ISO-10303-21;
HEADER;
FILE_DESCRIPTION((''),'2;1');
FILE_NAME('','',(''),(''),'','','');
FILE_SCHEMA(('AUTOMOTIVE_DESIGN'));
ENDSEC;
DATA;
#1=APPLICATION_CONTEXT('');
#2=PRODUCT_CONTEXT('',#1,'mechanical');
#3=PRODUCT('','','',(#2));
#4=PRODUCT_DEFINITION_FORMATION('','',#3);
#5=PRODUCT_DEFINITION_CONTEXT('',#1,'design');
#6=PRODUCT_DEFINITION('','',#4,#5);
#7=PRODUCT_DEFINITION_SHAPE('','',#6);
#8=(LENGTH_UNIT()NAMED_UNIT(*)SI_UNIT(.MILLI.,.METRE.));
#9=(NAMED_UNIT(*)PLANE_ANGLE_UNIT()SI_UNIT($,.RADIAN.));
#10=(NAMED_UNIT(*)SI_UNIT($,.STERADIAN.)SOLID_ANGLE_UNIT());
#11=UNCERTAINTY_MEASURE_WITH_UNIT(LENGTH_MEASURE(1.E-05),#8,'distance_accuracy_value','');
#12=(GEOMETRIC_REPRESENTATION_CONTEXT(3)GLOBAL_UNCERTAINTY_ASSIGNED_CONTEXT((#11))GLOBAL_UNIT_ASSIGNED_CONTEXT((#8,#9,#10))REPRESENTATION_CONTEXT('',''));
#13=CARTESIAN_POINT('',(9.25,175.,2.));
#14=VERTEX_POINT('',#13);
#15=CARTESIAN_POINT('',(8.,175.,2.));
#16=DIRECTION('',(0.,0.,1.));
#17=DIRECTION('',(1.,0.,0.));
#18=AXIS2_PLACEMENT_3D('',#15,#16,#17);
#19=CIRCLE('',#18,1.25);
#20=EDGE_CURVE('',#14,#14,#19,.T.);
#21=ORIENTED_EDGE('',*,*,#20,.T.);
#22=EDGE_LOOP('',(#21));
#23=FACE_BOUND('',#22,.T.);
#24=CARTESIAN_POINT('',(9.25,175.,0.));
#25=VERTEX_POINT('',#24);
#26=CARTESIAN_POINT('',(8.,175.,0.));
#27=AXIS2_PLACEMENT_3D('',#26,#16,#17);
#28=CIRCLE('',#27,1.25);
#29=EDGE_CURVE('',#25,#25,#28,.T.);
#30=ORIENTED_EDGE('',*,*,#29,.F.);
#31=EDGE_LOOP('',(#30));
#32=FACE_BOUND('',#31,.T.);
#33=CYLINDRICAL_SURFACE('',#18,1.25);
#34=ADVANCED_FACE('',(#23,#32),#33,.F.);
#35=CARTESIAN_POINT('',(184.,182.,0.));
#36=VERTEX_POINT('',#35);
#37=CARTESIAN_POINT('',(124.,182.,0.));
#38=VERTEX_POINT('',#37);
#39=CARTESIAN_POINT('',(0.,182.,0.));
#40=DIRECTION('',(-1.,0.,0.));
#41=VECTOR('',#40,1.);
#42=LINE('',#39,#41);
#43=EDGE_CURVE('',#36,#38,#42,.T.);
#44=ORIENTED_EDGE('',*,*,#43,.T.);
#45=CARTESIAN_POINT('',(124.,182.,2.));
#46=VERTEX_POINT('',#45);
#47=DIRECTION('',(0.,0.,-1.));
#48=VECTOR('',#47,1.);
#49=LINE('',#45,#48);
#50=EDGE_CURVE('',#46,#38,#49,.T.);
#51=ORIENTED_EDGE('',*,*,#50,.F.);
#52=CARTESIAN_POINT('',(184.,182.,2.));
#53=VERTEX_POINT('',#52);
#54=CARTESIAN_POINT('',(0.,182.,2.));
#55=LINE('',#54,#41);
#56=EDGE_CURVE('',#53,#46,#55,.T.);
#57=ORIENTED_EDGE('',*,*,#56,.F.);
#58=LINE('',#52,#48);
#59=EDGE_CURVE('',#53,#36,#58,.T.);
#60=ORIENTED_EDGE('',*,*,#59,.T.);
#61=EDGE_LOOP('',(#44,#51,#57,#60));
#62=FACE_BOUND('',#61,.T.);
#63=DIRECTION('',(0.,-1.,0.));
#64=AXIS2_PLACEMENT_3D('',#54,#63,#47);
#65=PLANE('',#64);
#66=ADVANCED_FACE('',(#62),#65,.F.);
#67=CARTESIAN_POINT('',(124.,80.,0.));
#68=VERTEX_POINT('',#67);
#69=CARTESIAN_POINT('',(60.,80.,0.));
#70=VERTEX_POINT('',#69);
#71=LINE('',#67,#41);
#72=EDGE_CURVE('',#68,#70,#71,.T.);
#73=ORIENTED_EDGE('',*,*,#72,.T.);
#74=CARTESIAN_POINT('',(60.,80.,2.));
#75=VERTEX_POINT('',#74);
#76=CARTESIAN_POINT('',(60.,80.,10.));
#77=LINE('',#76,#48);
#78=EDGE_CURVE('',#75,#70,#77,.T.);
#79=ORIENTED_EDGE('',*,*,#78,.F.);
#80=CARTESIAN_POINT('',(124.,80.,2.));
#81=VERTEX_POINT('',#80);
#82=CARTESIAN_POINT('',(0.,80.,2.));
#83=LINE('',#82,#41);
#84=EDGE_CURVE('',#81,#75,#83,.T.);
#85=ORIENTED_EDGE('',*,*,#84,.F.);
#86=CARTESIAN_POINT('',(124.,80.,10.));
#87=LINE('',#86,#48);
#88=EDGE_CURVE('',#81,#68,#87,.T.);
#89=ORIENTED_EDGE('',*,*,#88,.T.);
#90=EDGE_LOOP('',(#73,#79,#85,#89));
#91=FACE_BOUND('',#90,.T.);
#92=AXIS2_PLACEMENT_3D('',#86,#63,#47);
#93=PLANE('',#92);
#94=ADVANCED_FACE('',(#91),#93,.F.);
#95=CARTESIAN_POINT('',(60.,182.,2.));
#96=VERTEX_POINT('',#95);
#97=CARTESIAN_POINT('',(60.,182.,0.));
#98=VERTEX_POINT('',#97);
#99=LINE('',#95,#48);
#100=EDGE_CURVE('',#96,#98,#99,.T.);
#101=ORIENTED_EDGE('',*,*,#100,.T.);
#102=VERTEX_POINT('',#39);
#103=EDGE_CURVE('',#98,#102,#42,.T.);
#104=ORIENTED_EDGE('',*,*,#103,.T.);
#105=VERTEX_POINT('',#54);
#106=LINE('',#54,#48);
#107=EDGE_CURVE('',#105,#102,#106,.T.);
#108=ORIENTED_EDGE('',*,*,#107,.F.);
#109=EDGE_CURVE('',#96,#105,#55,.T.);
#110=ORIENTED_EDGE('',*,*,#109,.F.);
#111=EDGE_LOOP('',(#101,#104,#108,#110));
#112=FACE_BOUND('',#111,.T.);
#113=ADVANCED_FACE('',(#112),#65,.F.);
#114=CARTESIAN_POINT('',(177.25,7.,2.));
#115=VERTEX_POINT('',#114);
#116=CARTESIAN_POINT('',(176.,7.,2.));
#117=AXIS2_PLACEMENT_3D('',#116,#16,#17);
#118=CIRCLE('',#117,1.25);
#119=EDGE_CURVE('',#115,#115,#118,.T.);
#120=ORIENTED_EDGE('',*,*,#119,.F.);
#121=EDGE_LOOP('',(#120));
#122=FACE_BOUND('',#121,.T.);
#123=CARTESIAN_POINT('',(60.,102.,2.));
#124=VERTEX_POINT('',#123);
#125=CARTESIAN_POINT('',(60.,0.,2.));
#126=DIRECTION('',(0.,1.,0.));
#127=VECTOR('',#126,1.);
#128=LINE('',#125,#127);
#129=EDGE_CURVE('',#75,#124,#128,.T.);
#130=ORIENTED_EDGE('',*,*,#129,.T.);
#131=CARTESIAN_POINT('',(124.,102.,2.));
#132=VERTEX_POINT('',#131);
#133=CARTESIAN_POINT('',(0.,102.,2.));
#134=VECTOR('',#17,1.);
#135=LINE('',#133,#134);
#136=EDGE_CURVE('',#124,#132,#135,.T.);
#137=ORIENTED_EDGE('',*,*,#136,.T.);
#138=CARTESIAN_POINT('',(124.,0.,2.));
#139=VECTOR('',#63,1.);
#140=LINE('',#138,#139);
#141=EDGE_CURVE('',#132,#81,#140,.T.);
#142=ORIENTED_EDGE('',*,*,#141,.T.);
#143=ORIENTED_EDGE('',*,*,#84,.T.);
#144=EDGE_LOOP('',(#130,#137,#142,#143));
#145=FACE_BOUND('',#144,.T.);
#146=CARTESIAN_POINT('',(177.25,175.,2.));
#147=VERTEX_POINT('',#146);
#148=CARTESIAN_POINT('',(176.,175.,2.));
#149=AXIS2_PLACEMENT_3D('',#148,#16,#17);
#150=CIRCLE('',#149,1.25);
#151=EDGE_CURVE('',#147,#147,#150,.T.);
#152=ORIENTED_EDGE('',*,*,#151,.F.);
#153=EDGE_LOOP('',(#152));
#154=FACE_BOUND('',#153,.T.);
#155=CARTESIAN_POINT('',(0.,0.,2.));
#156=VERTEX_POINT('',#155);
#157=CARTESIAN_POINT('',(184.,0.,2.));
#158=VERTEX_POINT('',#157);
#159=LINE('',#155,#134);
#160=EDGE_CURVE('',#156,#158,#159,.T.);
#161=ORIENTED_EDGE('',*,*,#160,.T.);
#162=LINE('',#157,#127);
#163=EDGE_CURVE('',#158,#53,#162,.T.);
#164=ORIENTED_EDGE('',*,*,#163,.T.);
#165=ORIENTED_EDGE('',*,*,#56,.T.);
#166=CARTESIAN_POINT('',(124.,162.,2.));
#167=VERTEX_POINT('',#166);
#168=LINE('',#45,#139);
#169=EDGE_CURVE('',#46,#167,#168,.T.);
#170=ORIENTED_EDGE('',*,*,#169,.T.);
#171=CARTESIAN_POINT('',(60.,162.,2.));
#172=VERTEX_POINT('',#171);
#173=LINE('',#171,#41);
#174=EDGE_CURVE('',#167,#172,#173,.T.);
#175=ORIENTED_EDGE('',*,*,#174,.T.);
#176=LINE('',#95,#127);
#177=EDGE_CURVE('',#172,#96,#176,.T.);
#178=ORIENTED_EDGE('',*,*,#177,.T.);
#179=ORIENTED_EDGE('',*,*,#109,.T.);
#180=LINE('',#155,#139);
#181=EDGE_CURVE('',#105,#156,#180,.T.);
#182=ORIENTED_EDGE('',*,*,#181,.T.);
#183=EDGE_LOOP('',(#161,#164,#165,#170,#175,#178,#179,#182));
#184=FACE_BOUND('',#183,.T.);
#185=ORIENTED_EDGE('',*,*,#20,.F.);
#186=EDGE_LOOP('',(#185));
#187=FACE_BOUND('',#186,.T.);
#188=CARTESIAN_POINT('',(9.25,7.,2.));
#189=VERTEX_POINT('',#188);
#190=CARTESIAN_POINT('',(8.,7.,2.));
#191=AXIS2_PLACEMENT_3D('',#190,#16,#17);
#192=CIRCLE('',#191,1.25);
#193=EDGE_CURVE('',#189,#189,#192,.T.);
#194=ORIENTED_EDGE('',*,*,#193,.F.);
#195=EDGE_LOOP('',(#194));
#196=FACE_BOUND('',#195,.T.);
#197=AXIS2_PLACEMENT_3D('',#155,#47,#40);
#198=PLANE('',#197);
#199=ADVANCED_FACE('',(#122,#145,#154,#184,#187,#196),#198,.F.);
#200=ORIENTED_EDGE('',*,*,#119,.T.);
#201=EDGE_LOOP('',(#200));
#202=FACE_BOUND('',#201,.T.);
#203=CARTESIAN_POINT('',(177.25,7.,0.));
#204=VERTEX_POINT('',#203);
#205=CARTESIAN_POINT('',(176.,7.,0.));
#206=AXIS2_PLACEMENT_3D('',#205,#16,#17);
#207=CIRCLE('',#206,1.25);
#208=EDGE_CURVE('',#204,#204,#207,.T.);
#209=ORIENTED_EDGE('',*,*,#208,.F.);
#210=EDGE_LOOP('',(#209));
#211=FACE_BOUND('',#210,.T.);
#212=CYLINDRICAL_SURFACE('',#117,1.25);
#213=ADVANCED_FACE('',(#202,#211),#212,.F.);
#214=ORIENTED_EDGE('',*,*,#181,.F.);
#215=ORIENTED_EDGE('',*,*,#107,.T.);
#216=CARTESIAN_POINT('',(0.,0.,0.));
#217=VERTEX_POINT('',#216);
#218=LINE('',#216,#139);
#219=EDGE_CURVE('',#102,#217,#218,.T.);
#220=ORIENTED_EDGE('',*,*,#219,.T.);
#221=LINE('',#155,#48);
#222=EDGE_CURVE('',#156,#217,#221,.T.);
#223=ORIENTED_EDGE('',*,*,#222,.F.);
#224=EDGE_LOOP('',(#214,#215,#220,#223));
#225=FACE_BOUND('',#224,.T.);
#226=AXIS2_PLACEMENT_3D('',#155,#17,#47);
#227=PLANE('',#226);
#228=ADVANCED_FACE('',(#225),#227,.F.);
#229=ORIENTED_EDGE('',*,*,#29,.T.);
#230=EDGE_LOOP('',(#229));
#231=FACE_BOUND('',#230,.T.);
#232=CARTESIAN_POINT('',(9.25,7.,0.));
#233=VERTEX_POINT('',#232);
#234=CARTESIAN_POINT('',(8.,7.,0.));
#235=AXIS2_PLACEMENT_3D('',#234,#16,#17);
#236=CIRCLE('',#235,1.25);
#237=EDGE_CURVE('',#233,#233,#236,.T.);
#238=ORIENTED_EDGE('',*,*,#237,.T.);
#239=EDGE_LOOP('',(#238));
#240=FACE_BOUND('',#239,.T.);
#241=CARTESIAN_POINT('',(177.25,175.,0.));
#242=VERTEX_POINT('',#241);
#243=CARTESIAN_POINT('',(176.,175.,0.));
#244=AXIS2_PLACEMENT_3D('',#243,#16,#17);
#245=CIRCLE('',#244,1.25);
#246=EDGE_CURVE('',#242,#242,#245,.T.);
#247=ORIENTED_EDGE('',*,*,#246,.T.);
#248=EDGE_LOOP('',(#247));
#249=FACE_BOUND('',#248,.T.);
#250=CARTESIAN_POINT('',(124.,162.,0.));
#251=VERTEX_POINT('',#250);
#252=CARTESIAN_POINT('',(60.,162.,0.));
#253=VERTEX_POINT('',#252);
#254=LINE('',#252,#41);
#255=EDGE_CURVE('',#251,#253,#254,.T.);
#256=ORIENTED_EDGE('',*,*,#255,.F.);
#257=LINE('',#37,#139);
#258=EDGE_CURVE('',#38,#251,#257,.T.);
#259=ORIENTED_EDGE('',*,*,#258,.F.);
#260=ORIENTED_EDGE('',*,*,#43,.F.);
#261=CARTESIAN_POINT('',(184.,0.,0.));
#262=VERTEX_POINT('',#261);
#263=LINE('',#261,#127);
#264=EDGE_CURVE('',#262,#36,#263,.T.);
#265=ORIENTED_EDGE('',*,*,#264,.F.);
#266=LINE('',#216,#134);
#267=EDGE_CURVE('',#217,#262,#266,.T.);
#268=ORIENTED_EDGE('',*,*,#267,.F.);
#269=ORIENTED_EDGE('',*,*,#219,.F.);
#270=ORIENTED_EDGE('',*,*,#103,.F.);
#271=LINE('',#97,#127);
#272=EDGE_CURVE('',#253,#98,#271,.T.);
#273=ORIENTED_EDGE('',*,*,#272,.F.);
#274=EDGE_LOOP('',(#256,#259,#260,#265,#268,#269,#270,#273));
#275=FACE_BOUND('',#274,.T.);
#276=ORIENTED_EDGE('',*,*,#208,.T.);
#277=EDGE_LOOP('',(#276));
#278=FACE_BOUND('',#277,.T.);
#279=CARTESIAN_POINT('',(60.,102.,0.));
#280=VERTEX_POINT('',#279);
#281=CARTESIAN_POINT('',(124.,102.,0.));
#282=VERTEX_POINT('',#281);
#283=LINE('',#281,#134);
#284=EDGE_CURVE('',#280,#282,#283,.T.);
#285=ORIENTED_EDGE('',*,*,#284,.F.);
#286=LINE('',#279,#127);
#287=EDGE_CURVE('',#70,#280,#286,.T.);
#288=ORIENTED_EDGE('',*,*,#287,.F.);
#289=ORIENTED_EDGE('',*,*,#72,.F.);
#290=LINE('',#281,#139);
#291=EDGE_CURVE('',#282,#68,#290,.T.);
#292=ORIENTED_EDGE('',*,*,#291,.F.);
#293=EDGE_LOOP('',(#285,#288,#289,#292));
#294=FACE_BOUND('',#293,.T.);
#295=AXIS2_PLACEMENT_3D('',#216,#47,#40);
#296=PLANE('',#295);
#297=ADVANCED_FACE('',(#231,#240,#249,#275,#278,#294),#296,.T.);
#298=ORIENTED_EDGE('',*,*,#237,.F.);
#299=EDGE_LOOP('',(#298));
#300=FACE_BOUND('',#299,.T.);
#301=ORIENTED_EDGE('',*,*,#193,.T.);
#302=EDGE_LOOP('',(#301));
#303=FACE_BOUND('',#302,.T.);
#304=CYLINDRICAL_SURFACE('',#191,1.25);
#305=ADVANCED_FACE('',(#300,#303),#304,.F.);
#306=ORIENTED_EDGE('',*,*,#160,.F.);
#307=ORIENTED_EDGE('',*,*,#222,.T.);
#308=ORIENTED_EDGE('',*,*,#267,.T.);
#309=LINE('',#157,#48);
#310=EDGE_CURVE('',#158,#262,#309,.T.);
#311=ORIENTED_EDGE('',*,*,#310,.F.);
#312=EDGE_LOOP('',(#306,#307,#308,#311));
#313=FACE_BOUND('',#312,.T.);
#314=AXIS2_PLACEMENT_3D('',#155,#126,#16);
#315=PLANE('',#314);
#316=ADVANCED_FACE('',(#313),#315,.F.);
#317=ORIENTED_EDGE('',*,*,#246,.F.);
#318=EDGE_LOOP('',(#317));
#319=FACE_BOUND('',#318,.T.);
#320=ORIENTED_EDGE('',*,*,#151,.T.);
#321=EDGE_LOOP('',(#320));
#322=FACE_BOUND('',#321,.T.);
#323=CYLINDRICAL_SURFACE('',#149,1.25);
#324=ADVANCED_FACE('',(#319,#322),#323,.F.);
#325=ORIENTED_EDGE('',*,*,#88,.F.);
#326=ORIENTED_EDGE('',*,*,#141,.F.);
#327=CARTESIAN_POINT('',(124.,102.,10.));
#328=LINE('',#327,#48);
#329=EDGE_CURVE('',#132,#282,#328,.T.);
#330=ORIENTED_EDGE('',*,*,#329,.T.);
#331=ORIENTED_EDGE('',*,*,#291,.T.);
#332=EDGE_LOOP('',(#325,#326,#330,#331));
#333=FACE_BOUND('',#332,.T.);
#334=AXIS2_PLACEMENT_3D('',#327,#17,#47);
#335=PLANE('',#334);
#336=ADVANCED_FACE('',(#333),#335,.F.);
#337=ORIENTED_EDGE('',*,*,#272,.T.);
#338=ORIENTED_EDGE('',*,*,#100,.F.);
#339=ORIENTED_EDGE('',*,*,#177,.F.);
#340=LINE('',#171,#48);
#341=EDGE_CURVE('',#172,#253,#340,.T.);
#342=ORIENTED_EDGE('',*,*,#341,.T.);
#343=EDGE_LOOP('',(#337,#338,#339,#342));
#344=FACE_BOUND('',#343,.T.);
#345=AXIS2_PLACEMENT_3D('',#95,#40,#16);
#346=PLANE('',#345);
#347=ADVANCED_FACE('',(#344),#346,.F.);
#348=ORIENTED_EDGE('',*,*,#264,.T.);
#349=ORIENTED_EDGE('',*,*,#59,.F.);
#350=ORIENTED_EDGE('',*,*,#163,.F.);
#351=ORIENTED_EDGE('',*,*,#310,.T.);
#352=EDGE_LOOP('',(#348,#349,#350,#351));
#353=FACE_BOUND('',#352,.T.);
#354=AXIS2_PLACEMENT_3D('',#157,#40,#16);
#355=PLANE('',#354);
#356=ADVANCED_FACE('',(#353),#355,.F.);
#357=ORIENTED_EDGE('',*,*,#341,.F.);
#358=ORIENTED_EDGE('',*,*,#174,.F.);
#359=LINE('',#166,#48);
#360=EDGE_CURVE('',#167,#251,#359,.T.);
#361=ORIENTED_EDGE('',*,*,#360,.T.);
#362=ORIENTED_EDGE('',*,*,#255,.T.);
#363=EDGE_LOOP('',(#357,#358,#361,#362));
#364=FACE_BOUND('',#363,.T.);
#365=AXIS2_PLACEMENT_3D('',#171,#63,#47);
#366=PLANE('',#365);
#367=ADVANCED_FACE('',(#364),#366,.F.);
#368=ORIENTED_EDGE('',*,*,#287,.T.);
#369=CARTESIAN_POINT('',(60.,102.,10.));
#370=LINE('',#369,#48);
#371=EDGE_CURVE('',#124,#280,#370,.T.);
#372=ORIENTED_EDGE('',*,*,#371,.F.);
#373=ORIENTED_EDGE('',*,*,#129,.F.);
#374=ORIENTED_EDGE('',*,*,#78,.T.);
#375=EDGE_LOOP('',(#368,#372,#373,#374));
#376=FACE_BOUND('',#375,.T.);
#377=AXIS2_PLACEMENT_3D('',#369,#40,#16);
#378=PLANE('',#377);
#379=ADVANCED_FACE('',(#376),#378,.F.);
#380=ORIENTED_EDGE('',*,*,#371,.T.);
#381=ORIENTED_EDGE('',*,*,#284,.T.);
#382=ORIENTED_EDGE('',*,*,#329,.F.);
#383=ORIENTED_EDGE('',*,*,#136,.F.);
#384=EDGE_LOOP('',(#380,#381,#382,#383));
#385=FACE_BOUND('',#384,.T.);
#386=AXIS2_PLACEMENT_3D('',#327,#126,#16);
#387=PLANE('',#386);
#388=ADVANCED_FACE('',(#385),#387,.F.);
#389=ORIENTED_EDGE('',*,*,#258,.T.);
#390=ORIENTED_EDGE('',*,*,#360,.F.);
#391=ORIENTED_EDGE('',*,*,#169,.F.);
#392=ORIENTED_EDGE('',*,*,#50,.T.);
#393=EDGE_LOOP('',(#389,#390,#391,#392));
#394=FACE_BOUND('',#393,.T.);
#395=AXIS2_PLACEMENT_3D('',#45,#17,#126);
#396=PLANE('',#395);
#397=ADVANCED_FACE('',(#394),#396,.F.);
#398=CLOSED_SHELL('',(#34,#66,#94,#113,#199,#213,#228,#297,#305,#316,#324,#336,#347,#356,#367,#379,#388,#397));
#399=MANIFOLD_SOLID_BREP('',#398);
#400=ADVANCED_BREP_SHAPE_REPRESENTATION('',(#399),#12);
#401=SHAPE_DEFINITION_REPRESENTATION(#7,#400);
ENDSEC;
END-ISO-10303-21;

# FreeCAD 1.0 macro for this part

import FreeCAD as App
import Part
import Sketcher

V = App.Vector
Q = App.Units.Quantity


def add_polygon(sketch, points):
    """Adds a closed chain of lines whose ends are joined by coincident constraints."""
    first, n = sketch.GeometryCount, len(points)
    for a, b in zip(points, points[1:] + points[:1]):
        sketch.addGeometry(Part.LineSegment(App.Vector(*a, 0), App.Vector(*b, 0)), False)
    for i in range(n):
        sketch.addConstraint(Sketcher.Constraint("Coincident", first + i, 2, first + (i + 1) % n, 1))

doc = App.newDocument("Part")
params = doc.addObject("Spreadsheet::Sheet", "Params")
for row, (alias, value) in enumerate([
    ("sketch1_width", "184 mm"),
    ("sketch1_height", "182 mm"),
    ("pad1_length", "2 mm"),
    ("sketch2_diameter", "2.5 mm"),
    ("hole_diameter", "2.5 mm"),
    ("sketch3_width", "64 mm"),
    ("sketch3_height", "20 mm"),
    ("sketch4_width", "64 mm"),
    ("sketch4_height", "22 mm"),
    ("pocket2_length", "10 mm"),
], start=1):
    params.set(f"A{row}", alias)
    params.set(f"B{row}", "=" + value)
    params.setAlias(f"B{row}", alias)

body = doc.addObject("PartDesign::Body", "Body")

# Sketch on XY plane
sketch1 = body.newObject("Sketcher::SketchObject", "Sketch")
sketch1.AttachmentSupport = (doc.getObject("XY_Plane"), [""])
sketch1.MapMode = "FlatFace"
add_polygon(sketch1, [(0, 182), (0, 0), (184, 0), (184, 182)])  # lines 0-3
sketch1.addConstraint(Sketcher.Constraint("Vertical", 0))
sketch1.addConstraint(Sketcher.Constraint("Horizontal", 1))
sketch1.addConstraint(Sketcher.Constraint("Vertical", 2))
sketch1.addConstraint(Sketcher.Constraint("Horizontal", 3))
sketch1.addConstraint(Sketcher.Constraint("Coincident", 0, 2, -1, 1))
sketch1.addConstraint(Sketcher.Constraint("DistanceX", 1, 1, 1, 2, Q("184 mm")))
sketch1.addConstraint(Sketcher.Constraint("DistanceY", 0, 2, 0, 1, Q("182 mm")))
sketch1.setExpression("Constraints[9]", "Params.sketch1_width")
sketch1.setExpression("Constraints[10]", "Params.sketch1_height")
pad1 = body.newObject("PartDesign::Pad", "Pad")
pad1.Profile = sketch1
pad1.setExpression("Length", "Params.pad1_length")

# Sketch on XY plane
sketch2 = body.newObject("Sketcher::SketchObject", "Sketch001")
sketch2.AttachmentSupport = (doc.getObject("XY_Plane"), [""])
sketch2.MapMode = "FlatFace"
sketch2.AttachmentOffset = App.Placement(V(0, 0, 2), App.Rotation())
sketch2.addGeometry(Part.Circle(V(8, 175, 0), V(0, 0, 1), 1.2), False)
sketch2.addGeometry(Part.Circle(V(8, 7, 0), V(0, 0, 1), 1.2), False)
sketch2.addGeometry(Part.Circle(V(176, 7, 0), V(0, 0, 1), 1.2), False)
sketch2.addGeometry(Part.Circle(V(176, 175, 0), V(0, 0, 1), 1.2), False)
sketch2.addConstraint(Sketcher.Constraint("Equal", 0, 1))
sketch2.addConstraint(Sketcher.Constraint("Equal", 1, 2))
sketch2.addConstraint(Sketcher.Constraint("Equal", 2, 3))
sketch2.addConstraint(Sketcher.Constraint("Horizontal", 1, 3, 2, 3))
sketch2.addConstraint(Sketcher.Constraint("Horizontal", 0, 3, 3, 3))
sketch2.addConstraint(Sketcher.Constraint("Vertical", 0, 3, 1, 3))
sketch2.addConstraint(Sketcher.Constraint("Vertical", 2, 3, 3, 3))
sketch2.addConstraint(Sketcher.Constraint("Diameter", 0, Q("2.5 mm")))
sketch2.addConstraint(Sketcher.Constraint("DistanceX", -1, 1, 0, 3, Q("8 mm")))
sketch2.addConstraint(Sketcher.Constraint("DistanceY", -1, 1, 0, 3, Q("175 mm")))
sketch2.addConstraint(Sketcher.Constraint("DistanceY", -1, 1, 1, 3, Q("7 mm")))
sketch2.addConstraint(Sketcher.Constraint("DistanceX", -1, 1, 2, 3, Q("176 mm")))
sketch2.setExpression("Constraints[7]", "Params.sketch2_diameter")
doc.recompute()
hole = body.newObject("PartDesign::Hole", "Hole")
hole.Profile = sketch2
hole.ThreadType = "None"
hole.setExpression("Diameter", "Params.hole_diameter")
hole.DepthType = "ThroughAll"

# Sketch on XY plane
sketch3 = body.newObject("Sketcher::SketchObject", "Sketch002")
sketch3.AttachmentSupport = (doc.getObject("XY_Plane"), [""])
sketch3.MapMode = "FlatFace"
add_polygon(sketch3, [(124, 182), (124, 162), (60, 162), (60, 182)])  # lines 0-3
sketch3.addConstraint(Sketcher.Constraint("Vertical", 0))
sketch3.addConstraint(Sketcher.Constraint("Horizontal", 1))
sketch3.addConstraint(Sketcher.Constraint("Vertical", 2))
sketch3.addConstraint(Sketcher.Constraint("Horizontal", 3))
sketch3.addConstraint(Sketcher.Constraint("DistanceX", 1, 2, 1, 1, Q("64 mm")))
sketch3.addConstraint(Sketcher.Constraint("DistanceY", 0, 2, 0, 1, Q("20 mm")))
sketch3.addConstraint(Sketcher.Constraint("DistanceX", -1, 1, 0, 2, Q("124 mm")))
sketch3.addConstraint(Sketcher.Constraint("DistanceY", -1, 1, 0, 2, Q("162 mm")))
sketch3.setExpression("Constraints[8]", "Params.sketch3_width")
sketch3.setExpression("Constraints[9]", "Params.sketch3_height")
pocket1 = body.newObject("PartDesign::Pocket", "Pocket")
pocket1.Profile = sketch3
pocket1.Type = "ThroughAll"
pocket1.Reversed = True

# Sketch on XY plane
sketch4 = body.newObject("Sketcher::SketchObject", "Sketch003")
sketch4.AttachmentSupport = (doc.getObject("XY_Plane"), [""])
sketch4.MapMode = "FlatFace"
add_polygon(sketch4, [(124, 102), (124, 80), (60, 80), (60, 102)])  # lines 0-3
sketch4.addConstraint(Sketcher.Constraint("Vertical", 0))
sketch4.addConstraint(Sketcher.Constraint("Horizontal", 1))
sketch4.addConstraint(Sketcher.Constraint("Vertical", 2))
sketch4.addConstraint(Sketcher.Constraint("Horizontal", 3))
sketch4.addConstraint(Sketcher.Constraint("DistanceX", 1, 2, 1, 1, Q("64 mm")))
sketch4.addConstraint(Sketcher.Constraint("DistanceY", 0, 2, 0, 1, Q("22 mm")))
sketch4.addConstraint(Sketcher.Constraint("DistanceX", -1, 1, 0, 2, Q("124 mm")))
sketch4.addConstraint(Sketcher.Constraint("DistanceY", -1, 1, 0, 2, Q("80 mm")))
sketch4.setExpression("Constraints[8]", "Params.sketch4_width")
sketch4.setExpression("Constraints[9]", "Params.sketch4_height")
pocket2 = body.newObject("PartDesign::Pocket", "Pocket001")
pocket2.Profile = sketch4
pocket2.setExpression("Length", "Params.pocket2_length")
pocket2.Reversed = True

doc.recompute()
